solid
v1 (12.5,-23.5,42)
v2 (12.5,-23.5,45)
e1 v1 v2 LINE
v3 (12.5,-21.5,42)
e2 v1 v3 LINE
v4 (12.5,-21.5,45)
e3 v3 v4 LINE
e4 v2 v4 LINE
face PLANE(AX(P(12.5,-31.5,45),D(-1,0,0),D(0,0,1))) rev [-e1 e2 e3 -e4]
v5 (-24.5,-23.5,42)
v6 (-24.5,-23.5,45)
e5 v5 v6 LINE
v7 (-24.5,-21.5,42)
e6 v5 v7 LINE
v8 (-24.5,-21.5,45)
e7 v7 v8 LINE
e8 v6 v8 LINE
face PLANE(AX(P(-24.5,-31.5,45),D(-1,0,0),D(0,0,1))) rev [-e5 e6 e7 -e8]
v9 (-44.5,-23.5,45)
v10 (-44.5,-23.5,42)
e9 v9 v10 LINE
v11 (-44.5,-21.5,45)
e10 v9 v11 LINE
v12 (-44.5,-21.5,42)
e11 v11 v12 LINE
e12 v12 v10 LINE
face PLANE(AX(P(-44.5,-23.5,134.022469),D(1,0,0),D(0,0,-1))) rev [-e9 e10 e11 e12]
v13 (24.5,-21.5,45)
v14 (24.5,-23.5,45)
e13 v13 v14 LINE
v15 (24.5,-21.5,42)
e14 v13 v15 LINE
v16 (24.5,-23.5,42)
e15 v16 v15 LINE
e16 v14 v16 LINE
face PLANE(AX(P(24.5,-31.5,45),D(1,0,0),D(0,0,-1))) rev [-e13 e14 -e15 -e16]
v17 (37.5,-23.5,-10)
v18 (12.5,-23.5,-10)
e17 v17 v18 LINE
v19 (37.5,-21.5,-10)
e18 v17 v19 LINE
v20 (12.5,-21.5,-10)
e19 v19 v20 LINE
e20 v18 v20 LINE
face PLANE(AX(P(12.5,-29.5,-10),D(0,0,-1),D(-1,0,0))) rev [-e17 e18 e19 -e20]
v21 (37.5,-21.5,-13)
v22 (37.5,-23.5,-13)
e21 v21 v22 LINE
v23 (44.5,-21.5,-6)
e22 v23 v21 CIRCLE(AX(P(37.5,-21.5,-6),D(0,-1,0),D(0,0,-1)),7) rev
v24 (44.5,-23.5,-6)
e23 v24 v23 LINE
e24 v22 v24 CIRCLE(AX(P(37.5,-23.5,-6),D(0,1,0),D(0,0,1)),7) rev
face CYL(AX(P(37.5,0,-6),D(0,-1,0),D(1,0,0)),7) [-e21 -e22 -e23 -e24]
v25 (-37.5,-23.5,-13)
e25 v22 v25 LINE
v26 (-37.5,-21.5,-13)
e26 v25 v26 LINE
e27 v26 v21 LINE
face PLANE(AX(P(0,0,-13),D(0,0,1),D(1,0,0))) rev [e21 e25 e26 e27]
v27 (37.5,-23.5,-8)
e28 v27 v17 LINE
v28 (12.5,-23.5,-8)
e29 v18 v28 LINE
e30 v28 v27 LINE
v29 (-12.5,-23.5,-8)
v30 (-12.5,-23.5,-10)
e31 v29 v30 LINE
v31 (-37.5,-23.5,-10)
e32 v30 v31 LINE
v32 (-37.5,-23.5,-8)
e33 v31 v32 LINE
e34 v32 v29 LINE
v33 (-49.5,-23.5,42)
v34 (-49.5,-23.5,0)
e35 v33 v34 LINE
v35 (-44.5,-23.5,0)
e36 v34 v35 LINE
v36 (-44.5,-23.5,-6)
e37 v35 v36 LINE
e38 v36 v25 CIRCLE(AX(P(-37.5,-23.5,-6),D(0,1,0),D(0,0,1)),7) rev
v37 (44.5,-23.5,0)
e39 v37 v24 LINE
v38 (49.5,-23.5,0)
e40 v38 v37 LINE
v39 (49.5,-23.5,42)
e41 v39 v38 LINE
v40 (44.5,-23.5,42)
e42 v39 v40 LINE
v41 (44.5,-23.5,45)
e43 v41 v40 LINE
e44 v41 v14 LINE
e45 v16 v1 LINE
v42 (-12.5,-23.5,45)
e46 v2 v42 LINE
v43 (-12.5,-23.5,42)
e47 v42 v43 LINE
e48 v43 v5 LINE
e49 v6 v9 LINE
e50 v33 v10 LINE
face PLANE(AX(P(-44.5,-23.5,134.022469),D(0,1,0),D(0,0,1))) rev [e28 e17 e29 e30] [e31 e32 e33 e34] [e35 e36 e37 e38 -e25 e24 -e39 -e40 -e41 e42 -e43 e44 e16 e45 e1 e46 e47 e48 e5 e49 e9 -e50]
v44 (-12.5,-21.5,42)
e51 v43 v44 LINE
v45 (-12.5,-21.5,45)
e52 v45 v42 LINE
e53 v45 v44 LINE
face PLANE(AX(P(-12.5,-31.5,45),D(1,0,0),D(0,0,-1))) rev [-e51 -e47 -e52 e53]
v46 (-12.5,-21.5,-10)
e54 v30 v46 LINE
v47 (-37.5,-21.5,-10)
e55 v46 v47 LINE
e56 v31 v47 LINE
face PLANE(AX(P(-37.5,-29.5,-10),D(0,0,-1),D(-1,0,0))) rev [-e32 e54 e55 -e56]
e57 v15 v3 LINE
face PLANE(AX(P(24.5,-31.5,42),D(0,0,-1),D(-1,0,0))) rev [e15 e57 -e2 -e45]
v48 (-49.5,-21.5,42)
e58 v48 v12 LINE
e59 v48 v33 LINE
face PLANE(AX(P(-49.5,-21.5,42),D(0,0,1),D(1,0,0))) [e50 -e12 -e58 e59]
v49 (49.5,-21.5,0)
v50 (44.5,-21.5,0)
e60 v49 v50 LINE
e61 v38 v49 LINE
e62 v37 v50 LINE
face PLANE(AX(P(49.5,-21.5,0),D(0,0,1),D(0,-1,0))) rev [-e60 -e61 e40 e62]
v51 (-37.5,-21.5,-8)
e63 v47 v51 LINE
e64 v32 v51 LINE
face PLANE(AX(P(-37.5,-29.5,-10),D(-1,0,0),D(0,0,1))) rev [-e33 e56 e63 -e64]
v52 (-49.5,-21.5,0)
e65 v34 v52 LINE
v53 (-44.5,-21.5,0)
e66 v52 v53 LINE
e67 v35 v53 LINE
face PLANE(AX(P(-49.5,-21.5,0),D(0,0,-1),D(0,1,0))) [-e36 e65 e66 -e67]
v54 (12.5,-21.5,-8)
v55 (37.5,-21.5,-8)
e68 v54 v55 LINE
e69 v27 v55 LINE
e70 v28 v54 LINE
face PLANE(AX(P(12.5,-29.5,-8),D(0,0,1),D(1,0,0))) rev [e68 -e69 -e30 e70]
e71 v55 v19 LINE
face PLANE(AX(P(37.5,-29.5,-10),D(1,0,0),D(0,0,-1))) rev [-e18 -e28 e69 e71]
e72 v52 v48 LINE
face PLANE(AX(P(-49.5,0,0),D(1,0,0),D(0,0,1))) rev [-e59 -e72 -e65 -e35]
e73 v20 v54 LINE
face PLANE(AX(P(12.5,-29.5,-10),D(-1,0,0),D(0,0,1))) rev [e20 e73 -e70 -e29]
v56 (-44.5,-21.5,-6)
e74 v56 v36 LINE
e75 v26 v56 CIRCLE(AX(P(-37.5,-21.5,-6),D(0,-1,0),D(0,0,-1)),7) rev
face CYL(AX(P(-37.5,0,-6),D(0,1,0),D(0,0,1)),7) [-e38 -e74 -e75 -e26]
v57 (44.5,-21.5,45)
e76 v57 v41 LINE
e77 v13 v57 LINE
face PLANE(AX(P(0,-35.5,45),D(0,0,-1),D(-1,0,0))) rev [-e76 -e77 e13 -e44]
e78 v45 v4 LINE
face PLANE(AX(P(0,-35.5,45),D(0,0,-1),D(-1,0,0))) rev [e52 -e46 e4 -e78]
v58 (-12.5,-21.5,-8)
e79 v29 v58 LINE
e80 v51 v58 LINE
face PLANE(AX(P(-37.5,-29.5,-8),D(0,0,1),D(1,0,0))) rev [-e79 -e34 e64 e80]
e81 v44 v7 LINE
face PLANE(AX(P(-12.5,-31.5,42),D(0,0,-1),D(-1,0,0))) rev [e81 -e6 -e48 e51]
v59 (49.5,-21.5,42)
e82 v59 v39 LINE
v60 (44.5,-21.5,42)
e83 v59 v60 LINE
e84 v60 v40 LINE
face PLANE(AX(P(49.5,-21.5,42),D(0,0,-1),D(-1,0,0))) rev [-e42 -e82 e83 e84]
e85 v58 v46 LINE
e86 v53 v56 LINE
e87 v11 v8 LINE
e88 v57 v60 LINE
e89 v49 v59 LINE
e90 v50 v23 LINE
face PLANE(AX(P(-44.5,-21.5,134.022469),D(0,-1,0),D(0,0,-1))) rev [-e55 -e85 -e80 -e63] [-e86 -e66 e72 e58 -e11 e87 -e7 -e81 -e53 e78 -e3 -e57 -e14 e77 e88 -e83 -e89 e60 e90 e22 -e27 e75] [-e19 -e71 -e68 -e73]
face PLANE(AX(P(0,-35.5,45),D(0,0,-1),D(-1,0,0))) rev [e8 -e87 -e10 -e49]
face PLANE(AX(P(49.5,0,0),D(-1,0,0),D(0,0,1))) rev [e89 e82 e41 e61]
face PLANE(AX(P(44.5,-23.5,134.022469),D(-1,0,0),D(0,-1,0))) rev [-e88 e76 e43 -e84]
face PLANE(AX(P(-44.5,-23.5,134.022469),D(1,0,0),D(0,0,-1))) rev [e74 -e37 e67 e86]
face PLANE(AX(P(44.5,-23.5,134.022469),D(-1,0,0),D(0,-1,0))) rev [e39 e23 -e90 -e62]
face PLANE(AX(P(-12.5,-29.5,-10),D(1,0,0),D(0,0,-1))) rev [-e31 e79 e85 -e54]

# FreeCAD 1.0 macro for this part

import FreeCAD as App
import Part
import Sketcher

V = App.Vector


def edges_at(feature, points):
    """Names of the edges that pass closest to the given points."""
    edges = feature.Shape.Edges
    near = lambda p: min(range(len(edges)), key=lambda i: edges[i].distToShape(Part.Vertex(*p))[0])
    return sorted({f"Edge{near(p) + 1}" for p in points})

doc = App.newDocument("Part")
params = doc.addObject("Spreadsheet::Sheet", "Params")
for row, (alias, value) in enumerate([
    ("sketch1_width", "89 mm"),
    ("sketch1_height", "2 mm"),
    ("pad1_length", "45 mm"),
    ("pad1_length2", "3 mm"),
    ("sketch2_width", "12 mm"),
    ("sketch2_height", "3 mm"),
    ("pocket1_length", "10 mm"),
    ("sketch3_width", "2 mm"),
    ("sketch3_height", "42 mm"),
    ("pad2_length", "5 mm"),
    ("sketch4_width", "89 mm"),
    ("sketch4_height", "2 mm"),
    ("pad3_length", "10 mm"),
    ("sketch5_width", "25 mm"),
    ("sketch5_height", "2 mm"),
    ("pocket2_length", "8 mm"),
    ("fillet_radius", "7 mm"),
], start=1):
    params.set(f"A{row}", alias)
    params.set(f"B{row}", "=" + value)
    params.setAlias(f"B{row}", alias)

body = doc.addObject("PartDesign::Body", "Body")

sketch1 = doc.addObject("Sketcher::SketchObject", "Sketch")
body.addObject(sketch1)
sketch1.AttachmentSupport = (doc.XY_Plane, [""])
sketch1.MapMode = "FlatFace"
sketch1.addGeometry([
    Part.LineSegment(V(-44.5, -21.5, 0), V(-44.5, -23.5, 0)),
    Part.LineSegment(V(-44.5, -23.5, 0), V(44.5, -23.5, 0)),
    Part.LineSegment(V(44.5, -23.5, 0), V(44.5, -21.5, 0)),
    Part.LineSegment(V(44.5, -21.5, 0), V(-44.5, -21.5, 0)),
], False)
sketch1.addConstraint([
    Sketcher.Constraint("Coincident", 0, 2, 1, 1),
    Sketcher.Constraint("Coincident", 1, 2, 2, 1),
    Sketcher.Constraint("Coincident", 2, 2, 3, 1),
    Sketcher.Constraint("Coincident", 3, 2, 0, 1),
    Sketcher.Constraint("Vertical", 0),
    Sketcher.Constraint("Horizontal", 1),
    Sketcher.Constraint("Vertical", 2),
    Sketcher.Constraint("Horizontal", 3),
    Sketcher.Constraint("DistanceX", 1, 1, 1, 2, 89.0),
    Sketcher.Constraint("DistanceY", 0, 2, 0, 1, 2.0),
    Sketcher.Constraint("DistanceX", 0, 2, -1, 1, 44.5),
    Sketcher.Constraint("DistanceY", 0, 2, -1, 1, 23.5),
])
sketch1.setExpression("Constraints[8]", "Params.sketch1_width")
sketch1.setExpression("Constraints[9]", "Params.sketch1_height")
pad1 = doc.addObject("PartDesign::Pad", "Pad")
body.addObject(pad1)
pad1.Profile = sketch1
pad1.Type = "TwoLengths"
pad1.setExpression("Length", "Params.pad1_length")
pad1.setExpression("Length2", "Params.pad1_length2")

sketch2 = doc.addObject("Sketcher::SketchObject", "Sketch001")
body.addObject(sketch2)
sketch2.AttachmentSupport = (doc.XZ_Plane, [""])
sketch2.MapMode = "FlatFace"
sketch2.AttachmentOffset = App.Placement(V(0, 0, 21.5), App.Rotation())
sketch2.addGeometry([
    Part.LineSegment(V(12.5, 42, 0), V(12.5, 45, 0)),
    Part.LineSegment(V(12.5, 45, 0), V(24.5, 45, 0)),
    Part.LineSegment(V(24.5, 45, 0), V(24.5, 42, 0)),
    Part.LineSegment(V(24.5, 42, 0), V(12.5, 42, 0)),
    Part.LineSegment(V(-24.5, 42, 0), V(-24.5, 45, 0)),
    Part.LineSegment(V(-24.5, 45, 0), V(-12.5, 45, 0)),
    Part.LineSegment(V(-12.5, 45, 0), V(-12.5, 42, 0)),
    Part.LineSegment(V(-12.5, 42, 0), V(-24.5, 42, 0)),
], False)
sketch2.addConstraint([
    Sketcher.Constraint("Coincident", 0, 2, 1, 1),
    Sketcher.Constraint("Coincident", 1, 2, 2, 1),
    Sketcher.Constraint("Coincident", 2, 2, 3, 1),
    Sketcher.Constraint("Coincident", 3, 2, 0, 1),
    Sketcher.Constraint("Coincident", 4, 2, 5, 1),
    Sketcher.Constraint("Coincident", 5, 2, 6, 1),
    Sketcher.Constraint("Coincident", 6, 2, 7, 1),
    Sketcher.Constraint("Coincident", 7, 2, 4, 1),
    Sketcher.Constraint("Vertical", 0),
    Sketcher.Constraint("Horizontal", 1),
    Sketcher.Constraint("Vertical", 2),
    Sketcher.Constraint("Horizontal", 3),
    Sketcher.Constraint("Vertical", 4),
    Sketcher.Constraint("Horizontal", 5),
    Sketcher.Constraint("Vertical", 6),
    Sketcher.Constraint("Horizontal", 7),
    Sketcher.Constraint("Symmetric", 1, 2, 4, 2, -2),
    Sketcher.Constraint("Symmetric", 3, 2, 6, 2, -2),
    Sketcher.Constraint("DistanceX", 1, 1, 1, 2, 12.0),
    Sketcher.Constraint("DistanceY", 0, 1, 0, 2, 3.0),
    Sketcher.Constraint("DistanceY", -1, 1, 0, 2, 45.0),
    Sketcher.Constraint("DistanceX", 4, 2, 0, 2, 37.0),
])
sketch2.setExpression("Constraints[18]", "Params.sketch2_width")
sketch2.setExpression("Constraints[19]", "Params.sketch2_height")
pocket1 = doc.addObject("PartDesign::Pocket", "Pocket")
body.addObject(pocket1)
pocket1.Profile = sketch2
pocket1.setExpression("Length", "Params.pocket1_length")
pocket1.Reversed = True

sketch3 = doc.addObject("Sketcher::SketchObject", "Sketch002")
body.addObject(sketch3)
sketch3.AttachmentSupport = (doc.YZ_Plane, [""])
sketch3.MapMode = "FlatFace"
sketch3.AttachmentOffset = App.Placement(V(0, 0, 44.5), App.Rotation())
sketch3.addGeometry([
    Part.LineSegment(V(-21.5, 42, 0), V(-23.5, 42, 0)),
    Part.LineSegment(V(-23.5, 42, 0), V(-23.5, 0, 0)),
    Part.LineSegment(V(-23.5, 0, 0), V(-21.5, 0, 0)),
    Part.LineSegment(V(-21.5, 0, 0), V(-21.5, 42, 0)),
], False)
sketch3.addConstraint([
    Sketcher.Constraint("Coincident", 0, 2, 1, 1),
    Sketcher.Constraint("Coincident", 1, 2, 2, 1),
    Sketcher.Constraint("Coincident", 2, 2, 3, 1),
    Sketcher.Constraint("Coincident", 3, 2, 0, 1),
    Sketcher.Constraint("Horizontal", 0),
    Sketcher.Constraint("Vertical", 1),
    Sketcher.Constraint("Horizontal", 2),
    Sketcher.Constraint("Vertical", 3),
    Sketcher.Constraint("PointOnObject", 1, 2, -1),
    Sketcher.Constraint("DistanceX", 0, 2, 0, 1, 2.0),
    Sketcher.Constraint("DistanceY", 1, 2, 1, 1, 42.0),
    Sketcher.Constraint("DistanceX", 0, 2, -1, 1, 23.5),
])
sketch3.setExpression("Constraints[9]", "Params.sketch3_width")
sketch3.setExpression("Constraints[10]", "Params.sketch3_height")
pad2 = doc.addObject("PartDesign::Pad", "Pad001")
body.addObject(pad2)
pad2.Profile = sketch3
pad2.setExpression("Length", "Params.pad2_length")
doc.recompute()

mirrored = doc.addObject("PartDesign::Mirrored", "Mirrored")
body.addObject(mirrored)
mirrored.Originals = [pad2]
mirrored.MirrorPlane = (doc.YZ_Plane, [""])
body.Tip = mirrored

sketch4 = doc.addObject("Sketcher::SketchObject", "Sketch003")
body.addObject(sketch4)
sketch4.AttachmentSupport = (doc.XY_Plane, [""])
sketch4.MapMode = "FlatFace"
sketch4.AttachmentOffset = App.Placement(V(0, 0, -3), App.Rotation())
sketch4.addGeometry([
    Part.LineSegment(V(44.5, -21.5, 0), V(44.5, -23.5, 0)),
    Part.LineSegment(V(44.5, -23.5, 0), V(-44.5, -23.5, 0)),
    Part.LineSegment(V(-44.5, -23.5, 0), V(-44.5, -21.5, 0)),
    Part.LineSegment(V(-44.5, -21.5, 0), V(44.5, -21.5, 0)),
], False)
sketch4.addConstraint([
    Sketcher.Constraint("Coincident", 0, 2, 1, 1),
    Sketcher.Constraint("Coincident", 1, 2, 2, 1),
    Sketcher.Constraint("Coincident", 2, 2, 3, 1),
    Sketcher.Constraint("Coincident", 3, 2, 0, 1),
    Sketcher.Constraint("Vertical", 0),
    Sketcher.Constraint("Horizontal", 1),
    Sketcher.Constraint("Vertical", 2),
    Sketcher.Constraint("Horizontal", 3),
    Sketcher.Constraint("DistanceX", 1, 2, 1, 1, 89.0),
    Sketcher.Constraint("DistanceY", 0, 2, 0, 1, 2.0),
    Sketcher.Constraint("DistanceX", -1, 1, 0, 2, 44.5),
    Sketcher.Constraint("DistanceY", 0, 2, -1, 1, 23.5),
])
sketch4.setExpression("Constraints[8]", "Params.sketch4_width")
sketch4.setExpression("Constraints[9]", "Params.sketch4_height")
pad3 = doc.addObject("PartDesign::Pad", "Pad002")
body.addObject(pad3)
pad3.Profile = sketch4
pad3.setExpression("Length", "Params.pad3_length")
pad3.Reversed = True

sketch5 = doc.addObject("Sketcher::SketchObject", "Sketch004")
body.addObject(sketch5)
sketch5.AttachmentSupport = (doc.XZ_Plane, [""])
sketch5.MapMode = "FlatFace"
sketch5.AttachmentOffset = App.Placement(V(0, 0, 21.5), App.Rotation())
sketch5.addGeometry([
    Part.LineSegment(V(-37.5, -10, 0), V(-37.5, -8, 0)),
    Part.LineSegment(V(-37.5, -8, 0), V(-12.5, -8, 0)),
    Part.LineSegment(V(-12.5, -8, 0), V(-12.5, -10, 0)),
    Part.LineSegment(V(-12.5, -10, 0), V(-37.5, -10, 0)),
    Part.LineSegment(V(12.5, -10, 0), V(12.5, -8, 0)),
    Part.LineSegment(V(12.5, -8, 0), V(37.5, -8, 0)),
    Part.LineSegment(V(37.5, -8, 0), V(37.5, -10, 0)),
    Part.LineSegment(V(37.5, -10, 0), V(12.5, -10, 0)),
], False)
sketch5.addConstraint([
    Sketcher.Constraint("Coincident", 0, 2, 1, 1),
    Sketcher.Constraint("Coincident", 1, 2, 2, 1),
    Sketcher.Constraint("Coincident", 2, 2, 3, 1),
    Sketcher.Constraint("Coincident", 3, 2, 0, 1),
    Sketcher.Constraint("Coincident", 4, 2, 5, 1),
    Sketcher.Constraint("Coincident", 5, 2, 6, 1),
    Sketcher.Constraint("Coincident", 6, 2, 7, 1),
    Sketcher.Constraint("Coincident", 7, 2, 4, 1),
    Sketcher.Constraint("Vertical", 0),
    Sketcher.Constraint("Horizontal", 1),
    Sketcher.Constraint("Vertical", 2),
    Sketcher.Constraint("Horizontal", 3),
    Sketcher.Constraint("Vertical", 4),
    Sketcher.Constraint("Horizontal", 5),
    Sketcher.Constraint("Vertical", 6),
    Sketcher.Constraint("Horizontal", 7),
    Sketcher.Constraint("Symmetric", 1, 2, 4, 2, -2),
    Sketcher.Constraint("Symmetric", 3, 2, 6, 2, -2),
    Sketcher.Constraint("DistanceX", 1, 1, 1, 2, 25.0),
    Sketcher.Constraint("DistanceY", 0, 1, 0, 2, 2.0),
    Sketcher.Constraint("DistanceY", 0, 2, -1, 1, 8.0),
    Sketcher.Constraint("DistanceX", 1, 2, 4, 2, 25.0),
])
sketch5.setExpression("Constraints[18]", "Params.sketch5_width")
sketch5.setExpression("Constraints[19]", "Params.sketch5_height")
pocket2 = doc.addObject("PartDesign::Pocket", "Pocket001")
body.addObject(pocket2)
pocket2.Profile = sketch5
pocket2.setExpression("Length", "Params.pocket2_length")
pocket2.Reversed = True
doc.recompute()

fillet = doc.addObject("PartDesign::Fillet", "Fillet")
body.addObject(fillet)
fillet.Base = (pocket2, edges_at(pocket2, [(-44.5, -22.5, -13), (44.5, -22.5, -13)]))
fillet.setExpression("Radius", "Params.fillet_radius")

doc.recompute()
